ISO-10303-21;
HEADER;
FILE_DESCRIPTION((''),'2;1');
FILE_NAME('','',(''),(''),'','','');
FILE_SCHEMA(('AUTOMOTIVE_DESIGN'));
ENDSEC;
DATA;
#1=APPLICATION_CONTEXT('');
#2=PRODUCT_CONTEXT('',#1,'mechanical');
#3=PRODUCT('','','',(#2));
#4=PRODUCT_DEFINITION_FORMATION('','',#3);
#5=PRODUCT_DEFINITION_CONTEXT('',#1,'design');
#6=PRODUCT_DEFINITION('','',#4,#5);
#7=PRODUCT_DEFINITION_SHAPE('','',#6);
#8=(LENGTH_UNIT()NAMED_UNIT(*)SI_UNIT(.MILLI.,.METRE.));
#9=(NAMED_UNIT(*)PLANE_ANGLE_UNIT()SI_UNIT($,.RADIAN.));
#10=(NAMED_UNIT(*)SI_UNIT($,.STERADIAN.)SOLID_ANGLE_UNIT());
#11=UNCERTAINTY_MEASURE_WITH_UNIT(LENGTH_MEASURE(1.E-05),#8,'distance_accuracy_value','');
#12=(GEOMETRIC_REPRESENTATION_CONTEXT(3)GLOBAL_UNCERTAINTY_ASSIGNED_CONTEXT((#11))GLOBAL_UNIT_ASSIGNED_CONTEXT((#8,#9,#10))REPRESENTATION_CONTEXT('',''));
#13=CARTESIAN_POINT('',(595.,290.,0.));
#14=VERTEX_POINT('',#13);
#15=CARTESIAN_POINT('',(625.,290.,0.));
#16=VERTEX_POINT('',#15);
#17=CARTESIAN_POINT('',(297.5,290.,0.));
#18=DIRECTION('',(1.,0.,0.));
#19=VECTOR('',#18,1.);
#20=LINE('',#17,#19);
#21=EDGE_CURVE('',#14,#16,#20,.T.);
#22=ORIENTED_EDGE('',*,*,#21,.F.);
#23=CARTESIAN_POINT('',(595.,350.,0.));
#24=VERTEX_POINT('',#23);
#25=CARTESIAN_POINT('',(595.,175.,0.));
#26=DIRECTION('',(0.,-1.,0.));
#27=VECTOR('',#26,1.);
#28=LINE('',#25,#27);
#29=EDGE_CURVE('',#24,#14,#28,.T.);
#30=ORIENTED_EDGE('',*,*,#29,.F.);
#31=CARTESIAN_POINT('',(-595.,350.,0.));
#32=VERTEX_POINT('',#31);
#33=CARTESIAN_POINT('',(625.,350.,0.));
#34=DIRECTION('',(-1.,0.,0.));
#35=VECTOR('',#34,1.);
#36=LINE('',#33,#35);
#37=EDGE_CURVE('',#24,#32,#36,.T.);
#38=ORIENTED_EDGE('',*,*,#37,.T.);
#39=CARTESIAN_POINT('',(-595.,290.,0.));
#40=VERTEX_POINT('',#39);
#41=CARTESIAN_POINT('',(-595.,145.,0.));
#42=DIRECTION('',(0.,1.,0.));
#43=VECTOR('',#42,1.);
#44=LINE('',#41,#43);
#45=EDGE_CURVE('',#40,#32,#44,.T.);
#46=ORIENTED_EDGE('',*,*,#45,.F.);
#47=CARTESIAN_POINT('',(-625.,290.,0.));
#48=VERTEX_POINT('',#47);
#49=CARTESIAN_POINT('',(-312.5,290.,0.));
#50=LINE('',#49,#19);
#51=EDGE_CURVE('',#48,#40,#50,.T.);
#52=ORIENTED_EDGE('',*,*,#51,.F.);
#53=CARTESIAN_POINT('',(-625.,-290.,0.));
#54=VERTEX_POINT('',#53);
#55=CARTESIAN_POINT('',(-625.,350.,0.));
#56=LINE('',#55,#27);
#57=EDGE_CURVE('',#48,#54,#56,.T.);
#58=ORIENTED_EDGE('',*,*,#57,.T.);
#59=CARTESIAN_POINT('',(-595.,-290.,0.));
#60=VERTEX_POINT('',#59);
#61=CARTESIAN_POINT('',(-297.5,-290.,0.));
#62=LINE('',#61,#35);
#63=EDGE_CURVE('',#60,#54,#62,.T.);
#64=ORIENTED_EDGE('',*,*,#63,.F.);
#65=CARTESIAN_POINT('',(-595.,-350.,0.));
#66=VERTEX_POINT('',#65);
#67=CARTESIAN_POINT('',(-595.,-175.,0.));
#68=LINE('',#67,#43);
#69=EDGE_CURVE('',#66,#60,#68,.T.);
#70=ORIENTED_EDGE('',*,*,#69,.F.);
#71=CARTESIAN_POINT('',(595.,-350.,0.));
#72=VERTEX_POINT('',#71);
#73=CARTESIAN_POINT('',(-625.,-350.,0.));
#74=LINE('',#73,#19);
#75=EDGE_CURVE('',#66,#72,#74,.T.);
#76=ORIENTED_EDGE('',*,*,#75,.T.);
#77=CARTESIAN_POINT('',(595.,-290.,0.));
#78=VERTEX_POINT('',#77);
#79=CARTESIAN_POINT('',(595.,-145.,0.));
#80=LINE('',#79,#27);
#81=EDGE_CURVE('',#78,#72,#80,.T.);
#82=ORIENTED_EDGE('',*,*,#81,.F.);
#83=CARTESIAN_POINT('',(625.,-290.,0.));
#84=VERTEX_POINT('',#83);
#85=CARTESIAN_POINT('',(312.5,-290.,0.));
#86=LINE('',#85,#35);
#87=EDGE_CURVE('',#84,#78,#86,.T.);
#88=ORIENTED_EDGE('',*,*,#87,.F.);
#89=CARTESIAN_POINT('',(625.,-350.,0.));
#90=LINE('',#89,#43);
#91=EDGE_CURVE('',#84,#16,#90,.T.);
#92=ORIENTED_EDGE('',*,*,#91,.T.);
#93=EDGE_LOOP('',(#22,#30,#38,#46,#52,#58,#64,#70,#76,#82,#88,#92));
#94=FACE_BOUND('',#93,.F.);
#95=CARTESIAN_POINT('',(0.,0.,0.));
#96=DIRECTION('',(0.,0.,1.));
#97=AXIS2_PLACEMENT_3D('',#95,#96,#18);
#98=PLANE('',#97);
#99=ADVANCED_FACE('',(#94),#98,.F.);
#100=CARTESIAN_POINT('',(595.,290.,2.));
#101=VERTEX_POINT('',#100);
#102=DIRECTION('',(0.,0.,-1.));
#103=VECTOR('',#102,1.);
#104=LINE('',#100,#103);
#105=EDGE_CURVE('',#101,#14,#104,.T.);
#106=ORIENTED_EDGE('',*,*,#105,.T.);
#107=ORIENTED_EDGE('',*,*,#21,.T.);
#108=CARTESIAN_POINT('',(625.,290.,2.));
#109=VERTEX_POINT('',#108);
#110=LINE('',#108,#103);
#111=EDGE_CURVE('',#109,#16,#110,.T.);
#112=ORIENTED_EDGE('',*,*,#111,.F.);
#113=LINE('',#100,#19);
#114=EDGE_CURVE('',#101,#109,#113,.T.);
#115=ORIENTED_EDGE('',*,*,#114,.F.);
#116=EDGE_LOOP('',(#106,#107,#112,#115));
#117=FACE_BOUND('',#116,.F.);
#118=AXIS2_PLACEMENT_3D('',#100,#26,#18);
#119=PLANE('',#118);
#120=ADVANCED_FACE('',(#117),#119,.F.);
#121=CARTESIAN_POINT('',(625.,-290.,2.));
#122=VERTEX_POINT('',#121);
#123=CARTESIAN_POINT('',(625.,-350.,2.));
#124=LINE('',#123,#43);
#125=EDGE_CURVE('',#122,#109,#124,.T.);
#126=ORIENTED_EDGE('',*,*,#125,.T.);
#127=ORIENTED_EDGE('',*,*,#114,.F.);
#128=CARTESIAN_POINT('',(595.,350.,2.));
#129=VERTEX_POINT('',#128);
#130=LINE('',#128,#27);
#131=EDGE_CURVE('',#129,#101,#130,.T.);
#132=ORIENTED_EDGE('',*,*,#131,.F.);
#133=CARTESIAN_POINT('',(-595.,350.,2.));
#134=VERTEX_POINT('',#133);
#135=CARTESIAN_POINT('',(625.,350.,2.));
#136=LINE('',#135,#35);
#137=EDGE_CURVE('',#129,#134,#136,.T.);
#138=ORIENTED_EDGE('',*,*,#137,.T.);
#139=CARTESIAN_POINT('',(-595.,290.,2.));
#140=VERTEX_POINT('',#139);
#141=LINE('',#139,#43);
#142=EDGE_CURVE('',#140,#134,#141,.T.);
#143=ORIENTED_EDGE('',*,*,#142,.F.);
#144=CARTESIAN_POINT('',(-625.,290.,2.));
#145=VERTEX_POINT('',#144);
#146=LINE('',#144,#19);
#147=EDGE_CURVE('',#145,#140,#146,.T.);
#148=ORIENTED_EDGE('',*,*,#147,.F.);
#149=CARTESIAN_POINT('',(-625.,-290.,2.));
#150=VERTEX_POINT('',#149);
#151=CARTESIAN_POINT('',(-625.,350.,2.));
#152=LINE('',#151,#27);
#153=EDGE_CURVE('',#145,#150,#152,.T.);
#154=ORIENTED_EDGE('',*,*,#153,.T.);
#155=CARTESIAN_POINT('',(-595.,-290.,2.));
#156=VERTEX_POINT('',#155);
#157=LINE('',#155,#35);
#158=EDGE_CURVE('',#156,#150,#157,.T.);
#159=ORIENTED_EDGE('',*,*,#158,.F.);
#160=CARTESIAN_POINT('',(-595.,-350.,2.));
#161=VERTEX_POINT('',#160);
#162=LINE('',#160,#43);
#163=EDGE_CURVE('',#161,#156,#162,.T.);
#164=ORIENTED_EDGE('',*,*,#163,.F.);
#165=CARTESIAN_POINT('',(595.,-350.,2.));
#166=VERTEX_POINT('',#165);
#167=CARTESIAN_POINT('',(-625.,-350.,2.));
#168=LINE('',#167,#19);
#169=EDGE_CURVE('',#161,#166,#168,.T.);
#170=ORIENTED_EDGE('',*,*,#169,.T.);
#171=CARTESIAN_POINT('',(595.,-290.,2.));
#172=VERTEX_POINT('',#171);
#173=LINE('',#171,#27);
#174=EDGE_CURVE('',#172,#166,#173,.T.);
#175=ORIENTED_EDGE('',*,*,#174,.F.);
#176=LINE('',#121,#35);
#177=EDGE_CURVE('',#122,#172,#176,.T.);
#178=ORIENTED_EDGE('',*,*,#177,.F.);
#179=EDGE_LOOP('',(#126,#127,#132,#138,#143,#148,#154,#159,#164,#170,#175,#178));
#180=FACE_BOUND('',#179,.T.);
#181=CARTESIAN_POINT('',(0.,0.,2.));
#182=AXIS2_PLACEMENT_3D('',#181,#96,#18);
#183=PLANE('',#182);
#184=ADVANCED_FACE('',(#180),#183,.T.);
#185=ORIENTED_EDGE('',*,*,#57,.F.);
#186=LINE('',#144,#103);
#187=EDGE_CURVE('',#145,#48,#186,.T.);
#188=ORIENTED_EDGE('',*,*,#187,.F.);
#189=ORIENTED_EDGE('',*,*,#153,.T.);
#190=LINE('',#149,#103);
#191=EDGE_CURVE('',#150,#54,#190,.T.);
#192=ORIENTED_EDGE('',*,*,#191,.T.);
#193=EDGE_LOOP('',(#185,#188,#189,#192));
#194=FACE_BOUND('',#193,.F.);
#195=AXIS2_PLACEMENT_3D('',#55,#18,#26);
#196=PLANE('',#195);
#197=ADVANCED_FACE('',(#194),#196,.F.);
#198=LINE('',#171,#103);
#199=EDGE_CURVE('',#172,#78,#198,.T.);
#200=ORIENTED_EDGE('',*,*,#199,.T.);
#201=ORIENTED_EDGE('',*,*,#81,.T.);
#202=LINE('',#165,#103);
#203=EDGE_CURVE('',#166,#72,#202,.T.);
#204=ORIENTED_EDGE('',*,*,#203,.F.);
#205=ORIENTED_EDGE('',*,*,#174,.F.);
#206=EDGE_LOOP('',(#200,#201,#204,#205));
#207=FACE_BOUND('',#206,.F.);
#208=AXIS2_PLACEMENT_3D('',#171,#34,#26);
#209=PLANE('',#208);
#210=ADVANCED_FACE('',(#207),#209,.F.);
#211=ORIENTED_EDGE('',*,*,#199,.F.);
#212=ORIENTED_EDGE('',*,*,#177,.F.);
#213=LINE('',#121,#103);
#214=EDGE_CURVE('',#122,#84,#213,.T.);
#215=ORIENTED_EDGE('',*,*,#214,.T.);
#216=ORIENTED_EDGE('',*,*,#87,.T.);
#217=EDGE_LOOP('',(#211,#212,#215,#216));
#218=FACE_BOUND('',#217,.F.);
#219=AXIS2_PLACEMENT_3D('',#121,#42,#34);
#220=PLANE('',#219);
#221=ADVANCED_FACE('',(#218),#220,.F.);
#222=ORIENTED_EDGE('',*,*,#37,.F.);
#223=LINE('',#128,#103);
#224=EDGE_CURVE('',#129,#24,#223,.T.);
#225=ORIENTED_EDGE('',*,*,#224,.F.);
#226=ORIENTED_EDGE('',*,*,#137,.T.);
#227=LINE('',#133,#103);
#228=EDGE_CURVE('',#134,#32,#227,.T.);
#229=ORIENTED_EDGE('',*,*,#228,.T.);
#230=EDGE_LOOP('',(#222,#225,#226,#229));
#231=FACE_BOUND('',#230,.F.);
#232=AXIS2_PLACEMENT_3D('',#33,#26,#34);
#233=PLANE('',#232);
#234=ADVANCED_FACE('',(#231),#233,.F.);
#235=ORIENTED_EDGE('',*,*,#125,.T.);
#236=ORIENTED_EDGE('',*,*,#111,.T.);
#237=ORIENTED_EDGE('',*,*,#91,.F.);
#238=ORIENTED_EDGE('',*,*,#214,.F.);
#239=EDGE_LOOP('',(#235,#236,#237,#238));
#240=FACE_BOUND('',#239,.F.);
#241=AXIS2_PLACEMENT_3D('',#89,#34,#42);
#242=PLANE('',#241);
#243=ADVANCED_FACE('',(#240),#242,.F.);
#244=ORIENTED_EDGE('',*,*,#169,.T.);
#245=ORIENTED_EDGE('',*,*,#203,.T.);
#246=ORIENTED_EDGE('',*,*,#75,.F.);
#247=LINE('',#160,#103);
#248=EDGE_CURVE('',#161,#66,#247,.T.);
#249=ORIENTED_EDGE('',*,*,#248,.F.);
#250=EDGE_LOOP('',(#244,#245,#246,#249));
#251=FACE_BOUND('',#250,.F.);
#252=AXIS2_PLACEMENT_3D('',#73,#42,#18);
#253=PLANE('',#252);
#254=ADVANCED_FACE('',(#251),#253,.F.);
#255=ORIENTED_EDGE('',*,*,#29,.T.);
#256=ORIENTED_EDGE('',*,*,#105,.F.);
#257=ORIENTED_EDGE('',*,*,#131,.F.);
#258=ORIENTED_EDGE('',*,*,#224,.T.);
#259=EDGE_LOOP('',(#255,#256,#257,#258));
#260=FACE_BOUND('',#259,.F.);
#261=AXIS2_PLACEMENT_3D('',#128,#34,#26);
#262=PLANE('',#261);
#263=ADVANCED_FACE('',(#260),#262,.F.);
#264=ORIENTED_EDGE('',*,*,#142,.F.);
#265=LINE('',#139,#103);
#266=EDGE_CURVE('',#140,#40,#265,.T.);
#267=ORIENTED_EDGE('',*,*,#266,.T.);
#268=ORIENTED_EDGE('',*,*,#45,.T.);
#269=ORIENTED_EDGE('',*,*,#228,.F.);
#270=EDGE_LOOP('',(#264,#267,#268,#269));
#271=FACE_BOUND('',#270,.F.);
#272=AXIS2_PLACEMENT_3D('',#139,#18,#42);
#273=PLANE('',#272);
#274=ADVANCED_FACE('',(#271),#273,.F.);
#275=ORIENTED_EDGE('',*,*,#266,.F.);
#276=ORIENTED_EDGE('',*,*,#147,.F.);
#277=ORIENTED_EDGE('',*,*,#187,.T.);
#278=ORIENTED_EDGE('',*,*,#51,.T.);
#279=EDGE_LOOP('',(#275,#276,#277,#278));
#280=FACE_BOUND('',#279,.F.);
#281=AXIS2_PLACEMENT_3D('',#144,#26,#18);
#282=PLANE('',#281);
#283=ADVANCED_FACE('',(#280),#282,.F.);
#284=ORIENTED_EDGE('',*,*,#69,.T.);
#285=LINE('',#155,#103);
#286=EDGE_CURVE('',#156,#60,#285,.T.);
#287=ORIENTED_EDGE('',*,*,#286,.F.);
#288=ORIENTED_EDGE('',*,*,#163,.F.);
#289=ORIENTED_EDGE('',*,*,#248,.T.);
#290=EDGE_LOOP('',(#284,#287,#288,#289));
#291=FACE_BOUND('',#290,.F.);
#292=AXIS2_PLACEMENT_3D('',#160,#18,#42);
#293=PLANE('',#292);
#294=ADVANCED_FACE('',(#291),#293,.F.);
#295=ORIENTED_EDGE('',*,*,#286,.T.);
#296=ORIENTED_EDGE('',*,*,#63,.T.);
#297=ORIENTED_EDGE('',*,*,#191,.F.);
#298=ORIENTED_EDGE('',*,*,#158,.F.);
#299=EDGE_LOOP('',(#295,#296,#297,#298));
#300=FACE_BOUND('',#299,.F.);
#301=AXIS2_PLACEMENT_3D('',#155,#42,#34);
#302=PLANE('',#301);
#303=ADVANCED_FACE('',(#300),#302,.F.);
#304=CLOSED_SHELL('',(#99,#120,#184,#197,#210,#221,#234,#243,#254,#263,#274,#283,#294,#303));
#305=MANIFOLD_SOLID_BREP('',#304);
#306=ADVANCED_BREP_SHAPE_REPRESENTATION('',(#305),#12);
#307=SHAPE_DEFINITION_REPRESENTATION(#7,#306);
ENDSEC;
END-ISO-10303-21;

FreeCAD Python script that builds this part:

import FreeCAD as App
import Part
import Sketcher

V = App.Vector


def add_polygon(sketch, points):
    """Adds a closed chain of lines whose ends are joined by coincident constraints."""
    first, n = sketch.GeometryCount, len(points)
    for a, b in zip(points, points[1:] + points[:1]):
        sketch.addGeometry(Part.LineSegment(App.Vector(*a, 0), App.Vector(*b, 0)), False)
    for i in range(n):
        sketch.addConstraint(Sketcher.Constraint("Coincident", first + i, 2, first + (i + 1) % n, 1))

doc = App.newDocument("Part")
body = doc.addObject("PartDesign::Body", "Body")

# Sketch on XY plane
sketch1 = body.newObject("Sketcher::SketchObject", "Sketch")
sketch1.AttachmentSupport = (doc.getObject("XY_Plane"), [""])
sketch1.MapMode = "FlatFace"
add_polygon(sketch1, [(-625, 350), (-625, -350), (625, -350), (625, 350)])  # lines 0-3
sketch1.addConstraint(Sketcher.Constraint("Vertical", 0))
sketch1.addConstraint(Sketcher.Constraint("Horizontal", 1))
sketch1.addConstraint(Sketcher.Constraint("Vertical", 2))
sketch1.addConstraint(Sketcher.Constraint("Horizontal", 3))
sketch1.addConstraint(Sketcher.Constraint("Symmetric", 0, 2, 2, 2, -1, 1))
sketch1.addConstraint(Sketcher.Constraint("DistanceX", 1, 1, 1, 2, 1250.0))
sketch1.addConstraint(Sketcher.Constraint("DistanceY", 0, 2, 0, 1, 700.0))
pad1 = body.newObject("PartDesign::Pad", "Pad")
pad1.Profile = sketch1
pad1.Length = 2

# Sketch on XY plane
sketch2 = body.newObject("Sketcher::SketchObject", "Sketch001")
sketch2.AttachmentSupport = (doc.getObject("XY_Plane"), [""])
sketch2.MapMode = "FlatFace"
sketch2.AttachmentOffset = App.Placement(V(0, 0, 2), App.Rotation())
add_polygon(sketch2, [(-625, 290), (-595, 290), (-595, 350), (-625, 350)])  # lines 0-3
add_polygon(sketch2, [(-625, -350), (-595, -350), (-595, -290), (-625, -290)])  # lines 4-7
add_polygon(sketch2, [(595, 350), (595, 290), (625, 290), (625, 350)])  # lines 8-11
add_polygon(sketch2, [(625, -350), (625, -290), (595, -290), (595, -350)])  # lines 12-15
sketch2.addConstraint(Sketcher.Constraint("Horizontal", 0))
sketch2.addConstraint(Sketcher.Constraint("Vertical", 1))
sketch2.addConstraint(Sketcher.Constraint("Horizontal", 2))
sketch2.addConstraint(Sketcher.Constraint("Vertical", 3))
sketch2.addConstraint(Sketcher.Constraint("Horizontal", 4))
sketch2.addConstraint(Sketcher.Constraint("Vertical", 5))
sketch2.addConstraint(Sketcher.Constraint("Horizontal", 6))
sketch2.addConstraint(Sketcher.Constraint("Vertical", 7))
sketch2.addConstraint(Sketcher.Constraint("Vertical", 8))
sketch2.addConstraint(Sketcher.Constraint("Horizontal", 9))
sketch2.addConstraint(Sketcher.Constraint("Vertical", 10))
sketch2.addConstraint(Sketcher.Constraint("Horizontal", 11))
sketch2.addConstraint(Sketcher.Constraint("Vertical", 12))
sketch2.addConstraint(Sketcher.Constraint("Horizontal", 13))
sketch2.addConstraint(Sketcher.Constraint("Vertical", 14))
sketch2.addConstraint(Sketcher.Constraint("Horizontal", 15))
sketch2.addConstraint(Sketcher.Constraint("Symmetric", 5, 2, 8, 2, -1, 1))
sketch2.addConstraint(Sketcher.Constraint("Symmetric", 7, 2, 10, 2, -1, 1))
sketch2.addConstraint(Sketcher.Constraint("Symmetric", 3, 2, 12, 2, -1, 1))
sketch2.addConstraint(Sketcher.Constraint("Symmetric", 1, 2, 14, 2, -1, 1))
sketch2.addConstraint(Sketcher.Constraint("Symmetric", 0, 2, 8, 2, -2))
sketch2.addConstraint(Sketcher.Constraint("Symmetric", 2, 2, 10, 2, -2))
sketch2.addConstraint(Sketcher.Constraint("DistanceX", 0, 1, 0, 2, 30.0))
sketch2.addConstraint(Sketcher.Constraint("DistanceY", 1, 1, 1, 2, 60.0))
sketch2.addConstraint(Sketcher.Constraint("DistanceX", 0, 2, -1, 1, 595.0))
sketch2.addConstraint(Sketcher.Constraint("DistanceY", -1, 1, 0, 2, 290.0))
pocket1 = body.newObject("PartDesign::Pocket", "Pocket")
pocket1.Profile = sketch2
pocket1.Length = 725.2421

doc.recompute()
